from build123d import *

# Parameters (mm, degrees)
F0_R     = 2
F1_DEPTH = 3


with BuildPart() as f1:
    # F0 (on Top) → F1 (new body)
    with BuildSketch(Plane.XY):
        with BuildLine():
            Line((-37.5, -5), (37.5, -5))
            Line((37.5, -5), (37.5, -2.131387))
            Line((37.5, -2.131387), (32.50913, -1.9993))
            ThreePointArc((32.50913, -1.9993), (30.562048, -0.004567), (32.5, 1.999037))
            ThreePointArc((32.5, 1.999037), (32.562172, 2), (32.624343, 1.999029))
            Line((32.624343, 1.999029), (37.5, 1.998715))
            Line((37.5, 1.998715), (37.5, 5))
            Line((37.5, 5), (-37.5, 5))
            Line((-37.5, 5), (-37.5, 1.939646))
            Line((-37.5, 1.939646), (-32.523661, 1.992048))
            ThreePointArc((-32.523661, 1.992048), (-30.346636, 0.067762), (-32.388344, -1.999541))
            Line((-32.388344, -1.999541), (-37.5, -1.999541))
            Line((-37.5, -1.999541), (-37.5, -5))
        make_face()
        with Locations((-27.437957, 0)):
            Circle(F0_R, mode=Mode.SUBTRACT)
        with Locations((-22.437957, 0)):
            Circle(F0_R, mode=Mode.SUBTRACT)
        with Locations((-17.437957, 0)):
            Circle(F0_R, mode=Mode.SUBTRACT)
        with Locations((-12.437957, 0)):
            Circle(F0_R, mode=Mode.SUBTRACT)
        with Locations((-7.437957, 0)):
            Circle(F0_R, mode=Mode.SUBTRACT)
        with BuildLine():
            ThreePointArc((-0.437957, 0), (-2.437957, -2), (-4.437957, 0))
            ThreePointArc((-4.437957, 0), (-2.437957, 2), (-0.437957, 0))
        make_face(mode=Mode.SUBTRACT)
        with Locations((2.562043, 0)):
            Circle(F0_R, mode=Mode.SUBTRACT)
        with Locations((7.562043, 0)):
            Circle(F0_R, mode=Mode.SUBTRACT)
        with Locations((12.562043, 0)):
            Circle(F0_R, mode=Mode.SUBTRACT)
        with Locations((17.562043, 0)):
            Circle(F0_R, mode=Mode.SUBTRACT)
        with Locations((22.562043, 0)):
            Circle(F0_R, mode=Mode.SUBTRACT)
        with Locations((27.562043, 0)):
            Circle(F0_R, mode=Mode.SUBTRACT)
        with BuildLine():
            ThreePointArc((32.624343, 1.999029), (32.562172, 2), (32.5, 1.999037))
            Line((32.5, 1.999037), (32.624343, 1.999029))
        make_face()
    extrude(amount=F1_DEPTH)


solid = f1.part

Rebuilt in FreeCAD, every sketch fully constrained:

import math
import FreeCAD as App
import Part
import Sketcher
from FreeCAD import Vector

doc = App.newDocument("Part")
params = doc.addObject("Spreadsheet::Sheet", "Params")
for row, (alias, value) in enumerate([
    ("sketch1_diameter", "4 mm"),
    ("sketch1_diameter2", "4 mm"),
    ("sketch1_diameter3", "4 mm"),
    ("sketch1_diameter4", "4 mm"),
    ("sketch1_diameter5", "4 mm"),
    ("pad1_length", "3 mm"),
], start=1):
    params.set(f"A{row}", alias)
    params.set(f"B{row}", "=" + value)
    params.setAlias(f"B{row}", alias)

body = doc.addObject("PartDesign::Body", "Body")

# Sketch on XY plane
sketch1 = body.newObject("Sketcher::SketchObject", "Sketch")
sketch1.AttachmentSupport = (doc.getObject("XY_Plane"), [""])
sketch1.MapMode = "FlatFace"
sketch1.addGeometry(Part.LineSegment(Vector(-37.5, -5, 0), Vector(37.5, -5, 0)), False)
sketch1.addGeometry(Part.LineSegment(Vector(37.5, -5, 0), Vector(37.5, -2.131387, 0)), False)
sketch1.addGeometry(Part.LineSegment(Vector(37.5, -2.131387, 0), Vector(32.50913, -1.9993, 0)), False)
sketch1.addGeometry(Part.ArcOfCircle(Part.Circle(Vector(32.562043, 0, 0), Vector(0, 0, 1), 2), math.radians(91.777675), math.radians(268.483989)), False)
sketch1.addGeometry(Part.LineSegment(Vector(32.5, 1.999037, 0), Vector(32.624343, 1.999029, 0)), False)
sketch1.addGeometry(Part.LineSegment(Vector(32.624343, 1.999029, 0), Vector(37.5, 1.998715, 0)), False)
sketch1.addGeometry(Part.LineSegment(Vector(37.5, 1.998715, 0), Vector(37.5, 5, 0)), False)
sketch1.addGeometry(Part.LineSegment(Vector(37.5, 5, 0), Vector(-37.5, 5, 0)), False)
sketch1.addGeometry(Part.LineSegment(Vector(-37.5, 5, 0), Vector(-37.5, 1.939646, 0)), False)
sketch1.addGeometry(Part.LineSegment(Vector(-37.5, 1.939646, 0), Vector(-32.523661, 1.992048, 0)), False)
sketch1.addGeometry(Part.ArcOfCircle(Part.Circle(Vector(-32.345488, 0, 0), Vector(0, 0, 1), 2), math.radians(-91.227829), math.radians(95.111057)), False)
sketch1.addGeometry(Part.LineSegment(Vector(-32.388344, -1.999541, 0), Vector(-37.5, -1.999541, 0)), False)
sketch1.addGeometry(Part.LineSegment(Vector(-37.5, -1.999541, 0), Vector(-37.5, -5, 0)), False)
sketch1.addGeometry(Part.Circle(Vector(-27.437957, 0, 0), Vector(0, 0, 1), 2), False)
sketch1.addGeometry(Part.Circle(Vector(-22.437957, 0, 0), Vector(0, 0, 1), 2), False)
sketch1.addGeometry(Part.Circle(Vector(-17.437957, 0, 0), Vector(0, 0, 1), 2), False)
sketch1.addGeometry(Part.Circle(Vector(-12.437957, 0, 0), Vector(0, 0, 1), 2), False)
sketch1.addGeometry(Part.Circle(Vector(-7.437957, 0, 0), Vector(0, 0, 1), 2), False)
sketch1.addGeometry(Part.Circle(Vector(-2.437957, 0, 0), Vector(0, 0, 1), 2), False)
sketch1.addGeometry(Part.Circle(Vector(2.562043, 0, 0), Vector(0, 0, 1), 2), False)
sketch1.addGeometry(Part.Circle(Vector(7.562043, 0, 0), Vector(0, 0, 1), 2), False)
sketch1.addGeometry(Part.Circle(Vector(12.562043, 0, 0), Vector(0, 0, 1), 2), False)
sketch1.addGeometry(Part.Circle(Vector(17.562043, 0, 0), Vector(0, 0, 1), 2), False)
sketch1.addGeometry(Part.Circle(Vector(22.562043, 0, 0), Vector(0, 0, 1), 2), False)
sketch1.addGeometry(Part.Circle(Vector(27.562043, 0, 0), Vector(0, 0, 1), 2), False)
sketch1.addConstraint(Sketcher.Constraint("Coincident", 0, 2, 1, 1))
sketch1.addConstraint(Sketcher.Constraint("Coincident", 1, 2, 2, 1))
sketch1.addConstraint(Sketcher.Constraint("Coincident", 2, 2, 3, 2))
sketch1.addConstraint(Sketcher.Constraint("Coincident", 3, 1, 4, 1))
sketch1.addConstraint(Sketcher.Constraint("Coincident", 4, 2, 5, 1))
sketch1.addConstraint(Sketcher.Constraint("Coincident", 5, 2, 6, 1))
sketch1.addConstraint(Sketcher.Constraint("Coincident", 6, 2, 7, 1))
sketch1.addConstraint(Sketcher.Constraint("Coincident", 7, 2, 8, 1))
sketch1.addConstraint(Sketcher.Constraint("Coincident", 8, 2, 9, 1))
sketch1.addConstraint(Sketcher.Constraint("Coincident", 9, 2, 10, 2))
sketch1.addConstraint(Sketcher.Constraint("Coincident", 10, 1, 11, 1))
sketch1.addConstraint(Sketcher.Constraint("Coincident", 11, 2, 12, 1))
sketch1.addConstraint(Sketcher.Constraint("Coincident", 12, 2, 0, 1))
sketch1.addConstraint(Sketcher.Constraint("Horizontal", 0))
sketch1.addConstraint(Sketcher.Constraint("Vertical", 1))
sketch1.addConstraint(Sketcher.Constraint("Vertical", 6))
sketch1.addConstraint(Sketcher.Constraint("Horizontal", 7))
sketch1.addConstraint(Sketcher.Constraint("Vertical", 8))
sketch1.addConstraint(Sketcher.Constraint("Horizontal", 11))
sketch1.addConstraint(Sketcher.Constraint("Vertical", 12))
sketch1.addConstraint(Sketcher.Constraint("PointOnObject", 3, 3, -1))
sketch1.addConstraint(Sketcher.Constraint("PointOnObject", 10, 3, -1))
sketch1.addConstraint(Sketcher.Constraint("PointOnObject", 13, 3, -1))
sketch1.addConstraint(Sketcher.Constraint("PointOnObject", 14, 3, -1))
sketch1.addConstraint(Sketcher.Constraint("PointOnObject", 15, 3, -1))
sketch1.addConstraint(Sketcher.Constraint("PointOnObject", 16, 3, -1))
sketch1.addConstraint(Sketcher.Constraint("PointOnObject", 17, 3, -1))
sketch1.addConstraint(Sketcher.Constraint("PointOnObject", 18, 3, -1))
sketch1.addConstraint(Sketcher.Constraint("PointOnObject", 19, 3, -1))
sketch1.addConstraint(Sketcher.Constraint("PointOnObject", 20, 3, -1))
sketch1.addConstraint(Sketcher.Constraint("PointOnObject", 21, 3, -1))
sketch1.addConstraint(Sketcher.Constraint("PointOnObject", 22, 3, -1))
sketch1.addConstraint(Sketcher.Constraint("PointOnObject", 23, 3, -1))
sketch1.addConstraint(Sketcher.Constraint("PointOnObject", 24, 3, -1))
sketch1.addConstraint(Sketcher.Constraint("Diameter", 13, 4.0))
sketch1.addConstraint(Sketcher.Constraint("Diameter", 14, 4.0))
sketch1.addConstraint(Sketcher.Constraint("Diameter", 15, 4.0))
sketch1.addConstraint(Sketcher.Constraint("Diameter", 16, 4.0))
sketch1.addConstraint(Sketcher.Constraint("Diameter", 17, 4.0))
sketch1.addConstraint(Sketcher.Constraint("Diameter", 18, 4.0))
sketch1.addConstraint(Sketcher.Constraint("Diameter", 19, 4.0))
sketch1.addConstraint(Sketcher.Constraint("Diameter", 20, 4.0))
sketch1.addConstraint(Sketcher.Constraint("Diameter", 21, 4.0))
sketch1.addConstraint(Sketcher.Constraint("Diameter", 22, 4.0))
sketch1.addConstraint(Sketcher.Constraint("Diameter", 23, 4.0))
sketch1.addConstraint(Sketcher.Constraint("Diameter", 24, 4.0))
sketch1.addConstraint(Sketcher.Constraint("Radius", 3, 2.0))
sketch1.addConstraint(Sketcher.Constraint("Radius", 10, 2.0))
sketch1.addConstraint(Sketcher.Constraint("DistanceX", 0, 1, 0, 2, 75.0))
sketch1.addConstraint(Sketcher.Constraint("DistanceX", 7, 2, 7, 1, 75.0))
sketch1.addConstraint(Sketcher.Constraint("DistanceY", 0, 2, -1, 1, 5.0))
sketch1.addConstraint(Sketcher.Constraint("DistanceY", -1, 1, 6, 2, 5.0))
sketch1.addConstraint(Sketcher.Constraint("DistanceX", 13, 3, 3, 3, 60.0))
sketch1.addConstraint(Sketcher.Constraint("DistanceX", 13, 3, 14, 3, 5.0))
sketch1.addConstraint(Sketcher.Constraint("DistanceX", 14, 3, 15, 3, 5.0))
sketch1.addConstraint(Sketcher.Constraint("DistanceX", 15, 3, 16, 3, 5.0))
sketch1.addConstraint(Sketcher.Constraint("DistanceX", 16, 3, 17, 3, 5.0))
sketch1.addConstraint(Sketcher.Constraint("DistanceX", 17, 3, 18, 3, 5.0))
sketch1.addConstraint(Sketcher.Constraint("DistanceX", 18, 3, 19, 3, 5.0))
sketch1.addConstraint(Sketcher.Constraint("DistanceX", 19, 3, 20, 3, 5.0))
sketch1.addConstraint(Sketcher.Constraint("DistanceX", 20, 3, 21, 3, 5.0))
sketch1.addConstraint(Sketcher.Constraint("DistanceX", 21, 3, 22, 3, 5.0))
sketch1.addConstraint(Sketcher.Constraint("DistanceX", 22, 3, 23, 3, 5.0))
sketch1.addConstraint(Sketcher.Constraint("DistanceX", 24, 3, 3, 3, 5.0))
sketch1.addConstraint(Sketcher.Constraint("DistanceX", 3, 1, 1, 2, 5.0))
sketch1.addConstraint(Sketcher.Constraint("DistanceX", 3, 1, 5, 2, 5.0))
sketch1.addConstraint(Sketcher.Constraint("DistanceX", -1, 1, 0, 2, 37.5))
sketch1.addConstraint(Sketcher.Constraint("DistanceY", 12, 2, 12, 1, 3.000459))
sketch1.addConstraint(Sketcher.Constraint("DistanceY", 2, 2, -1, 1, 1.9993))
sketch1.addConstraint(Sketcher.Constraint("DistanceX", 3, 3, 4, 2, 0.0623))
sketch1.addConstraint(Sketcher.Constraint("DistanceX", 11, 2, 11, 1, 5.111656))
sketch1.addConstraint(Sketcher.Constraint("DistanceY", 1, 1, 1, 2, 2.868613))
sketch1.addConstraint(Sketcher.Constraint("DistanceY", 6, 1, 6, 2, 3.001285))
sketch1.addConstraint(Sketcher.Constraint("DistanceY", 8, 2, 8, 1, 3.060354))
sketch1.addConstraint(Sketcher.Constraint("DistanceX", -1, 1, 2, 2, 32.50913))
sketch1.addConstraint(Sketcher.Constraint("DistanceY", -1, 1, 4, 2, 1.999029))
sketch1.addConstraint(Sketcher.Constraint("DistanceX", 9, 2, -1, 1, 32.523661))
sketch1.setExpression("Constraints[34]", "Params.sketch1_diameter")
sketch1.setExpression("Constraints[35]", "Params.sketch1_diameter2")
sketch1.setExpression("Constraints[36]", "Params.sketch1_diameter3")
sketch1.setExpression("Constraints[37]", "Params.sketch1_diameter4")
sketch1.setExpression("Constraints[38]", "Params.sketch1_diameter5")
pad1 = body.newObject("PartDesign::Pad", "Pad")
pad1.Profile = sketch1
pad1.setExpression("Length", "Params.pad1_length")

doc.recompute()
